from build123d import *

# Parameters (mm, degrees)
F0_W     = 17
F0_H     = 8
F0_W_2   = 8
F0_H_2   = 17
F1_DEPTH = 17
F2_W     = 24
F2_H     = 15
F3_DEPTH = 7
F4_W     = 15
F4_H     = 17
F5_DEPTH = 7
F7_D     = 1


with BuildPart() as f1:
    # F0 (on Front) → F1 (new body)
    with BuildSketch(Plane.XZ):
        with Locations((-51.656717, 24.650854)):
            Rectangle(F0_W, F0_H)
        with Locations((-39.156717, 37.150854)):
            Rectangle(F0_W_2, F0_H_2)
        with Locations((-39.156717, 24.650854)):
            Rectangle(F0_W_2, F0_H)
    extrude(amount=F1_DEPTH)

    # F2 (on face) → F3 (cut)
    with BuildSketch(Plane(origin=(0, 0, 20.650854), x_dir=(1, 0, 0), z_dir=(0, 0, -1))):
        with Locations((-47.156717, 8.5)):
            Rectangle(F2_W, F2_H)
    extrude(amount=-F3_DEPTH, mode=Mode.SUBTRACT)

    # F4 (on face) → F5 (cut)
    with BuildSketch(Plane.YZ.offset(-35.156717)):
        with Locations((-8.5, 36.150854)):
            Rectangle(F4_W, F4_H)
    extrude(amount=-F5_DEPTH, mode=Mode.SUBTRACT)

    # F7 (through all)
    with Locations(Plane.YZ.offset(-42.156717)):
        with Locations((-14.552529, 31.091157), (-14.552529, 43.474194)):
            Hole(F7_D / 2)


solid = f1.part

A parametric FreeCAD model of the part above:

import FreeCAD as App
import Part
import Sketcher

V = App.Vector


def add_polygon(sketch, points):
    """Adds a closed chain of lines whose ends are joined by coincident constraints."""
    first, n = sketch.GeometryCount, len(points)
    for a, b in zip(points, points[1:] + points[:1]):
        sketch.addGeometry(Part.LineSegment(App.Vector(*a, 0), App.Vector(*b, 0)), False)
    for i in range(n):
        sketch.addConstraint(Sketcher.Constraint("Coincident", first + i, 2, first + (i + 1) % n, 1))

doc = App.newDocument("Part")
body = doc.addObject("PartDesign::Body", "Body")

sketch1 = doc.addObject("Sketcher::SketchObject", "Sketch")
body.addObject(sketch1)
sketch1.AttachmentSupport = (doc.XZ_Plane, [""])
sketch1.MapMode = "FlatFace"
add_polygon(sketch1, [(-60, 29), (-60, 21), (-35, 21), (-35, 46), (-43, 46), (-43, 29)])
sketch1.addConstraint([
    Sketcher.Constraint("Vertical", 0),
    Sketcher.Constraint("Horizontal", 1),
    Sketcher.Constraint("Vertical", 2),
    Sketcher.Constraint("Horizontal", 3),
    Sketcher.Constraint("Vertical", 4),
    Sketcher.Constraint("Horizontal", 5),
    Sketcher.Constraint("Equal", 3, 0),
    Sketcher.Constraint("Equal", 1, 2),
    Sketcher.Constraint("DistanceX", 1, 1, 1, 2, 25.0),
    Sketcher.Constraint("DistanceX", 3, 2, 3, 1, 8.0),
    Sketcher.Constraint("DistanceX", 0, 2, -1, 1, 60.156717),
    Sketcher.Constraint("DistanceY", -1, 1, 0, 2, 20.650854),
])
pad1 = doc.addObject("PartDesign::Pad", "Pad")
body.addObject(pad1)
pad1.Profile = sketch1
pad1.Length = 17

sketch2 = doc.addObject("Sketcher::SketchObject", "Sketch001")
body.addObject(sketch2)
sketch2.AttachmentSupport = (doc.XY_Plane, [""])
sketch2.MapMode = "FlatFace"
sketch2.AttachmentOffset = App.Placement(V(0, 0, 20.650854), App.Rotation())
add_polygon(sketch2, [(-59, -16), (-59, -1), (-35, -1), (-35, -16)])
sketch2.addConstraint([
    Sketcher.Constraint("Vertical", 0),
    Sketcher.Constraint("Horizontal", 1),
    Sketcher.Constraint("Vertical", 2),
    Sketcher.Constraint("Horizontal", 3),
    Sketcher.Constraint("DistanceX", 1, 1, 1, 2, 24.0),
    Sketcher.Constraint("DistanceY", 0, 1, 0, 2, 15.0),
    Sketcher.Constraint("DistanceY", 0, 2, -1, 1, 1.0),
    Sketcher.Constraint("DistanceX", 0, 2, -1, 1, 59.156717),
])
pocket1 = doc.addObject("PartDesign::Pocket", "Pocket")
body.addObject(pocket1)
pocket1.Profile = sketch2
pocket1.Length = 7
pocket1.Reversed = True

sketch3 = doc.addObject("Sketcher::SketchObject", "Sketch002")
body.addObject(sketch3)
sketch3.AttachmentSupport = (doc.YZ_Plane, [""])
sketch3.MapMode = "FlatFace"
sketch3.AttachmentOffset = App.Placement(V(0, 0, -35.156717), App.Rotation())
add_polygon(sketch3, [(-16, 45), (-16, 28), (-1, 28), (-1, 45)])
sketch3.addConstraint([
    Sketcher.Constraint("Vertical", 0),
    Sketcher.Constraint("Horizontal", 1),
    Sketcher.Constraint("Vertical", 2),
    Sketcher.Constraint("Horizontal", 3),
    Sketcher.Constraint("DistanceX", 1, 1, 1, 2, 15.0),
    Sketcher.Constraint("DistanceY", 0, 2, 0, 1, 17.0),
    Sketcher.Constraint("DistanceX", 0, 2, -1, 1, 16.0),
    Sketcher.Constraint("DistanceY", -1, 1, 0, 2, 27.650854),
])
pocket2 = doc.addObject("PartDesign::Pocket", "Pocket001")
body.addObject(pocket2)
pocket2.Profile = sketch3
pocket2.Length = 7

sketch4 = doc.addObject("Sketcher::SketchObject", "Sketch003")
body.addObject(sketch4)
sketch4.AttachmentSupport = (doc.YZ_Plane, [""])
sketch4.MapMode = "FlatFace"
sketch4.AttachmentOffset = App.Placement(V(0, 0, -42.156717), App.Rotation())
sketch4.addGeometry([
    Part.Circle(V(-14.6, 31.1, 0), V(0, 0, 1), 0.5),
    Part.Circle(V(-14.6, 43.5, 0), V(0, 0, 1), 0.5),
], False)
sketch4.addConstraint([
    Sketcher.Constraint("Equal", 0, 1),
    Sketcher.Constraint("Vertical", 0, 3, 1, 3),
    Sketcher.Constraint("Diameter", 0, 1.0),
    Sketcher.Constraint("DistanceX", 0, 3, -1, 1, 14.552529),
    Sketcher.Constraint("DistanceY", -1, 1, 0, 3, 31.091157),
    Sketcher.Constraint("DistanceY", -1, 1, 1, 3, 43.474194),
])
doc.recompute()
hole = doc.addObject("PartDesign::Hole", "Hole")
body.addObject(hole)
hole.Profile = sketch4
hole.ThreadType = "None"
hole.Diameter = 1
hole.DepthType = "ThroughAll"

doc.recompute()
